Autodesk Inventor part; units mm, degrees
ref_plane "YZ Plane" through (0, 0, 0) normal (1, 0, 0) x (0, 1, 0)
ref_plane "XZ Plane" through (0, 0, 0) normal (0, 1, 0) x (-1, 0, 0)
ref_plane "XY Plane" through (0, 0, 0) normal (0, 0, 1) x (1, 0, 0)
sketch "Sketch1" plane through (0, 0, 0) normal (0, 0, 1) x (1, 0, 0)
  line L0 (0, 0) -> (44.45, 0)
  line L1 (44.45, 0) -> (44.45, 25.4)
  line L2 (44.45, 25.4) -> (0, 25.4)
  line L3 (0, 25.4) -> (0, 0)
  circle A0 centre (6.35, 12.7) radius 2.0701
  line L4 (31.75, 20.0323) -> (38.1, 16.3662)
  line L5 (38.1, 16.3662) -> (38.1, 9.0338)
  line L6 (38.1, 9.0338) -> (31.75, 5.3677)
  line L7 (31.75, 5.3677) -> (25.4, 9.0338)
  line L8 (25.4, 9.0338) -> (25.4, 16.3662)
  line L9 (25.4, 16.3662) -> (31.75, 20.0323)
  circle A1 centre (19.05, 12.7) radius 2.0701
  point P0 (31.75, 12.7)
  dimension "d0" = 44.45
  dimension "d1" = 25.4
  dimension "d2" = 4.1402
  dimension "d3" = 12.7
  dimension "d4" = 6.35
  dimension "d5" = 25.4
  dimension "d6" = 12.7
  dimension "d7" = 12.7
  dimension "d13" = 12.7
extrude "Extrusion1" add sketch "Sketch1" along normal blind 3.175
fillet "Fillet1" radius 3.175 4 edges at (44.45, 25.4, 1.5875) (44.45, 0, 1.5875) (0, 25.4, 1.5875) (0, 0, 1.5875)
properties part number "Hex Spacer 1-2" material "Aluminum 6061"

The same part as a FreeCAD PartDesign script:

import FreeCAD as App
import Part
import Sketcher
from FreeCAD import Vector
Q = App.Units.Quantity


def edges_at(feature, points):
    """Names of the edges that pass closest to the given points."""
    edges = feature.Shape.Edges
    near = lambda p: min(range(len(edges)), key=lambda i: edges[i].distToShape(Part.Vertex(*p))[0])
    return sorted({f"Edge{near(p) + 1}" for p in points})

doc = App.newDocument("Part")
body = doc.addObject("PartDesign::Body", "Body")

sketch1 = doc.addObject("Sketcher::SketchObject", "Sketch")
body.addObject(sketch1)
sketch1.AttachmentSupport = (doc.XY_Plane, [""])
sketch1.MapMode = "FlatFace"
sketch1.addGeometry([
    Part.LineSegment(Vector(0, 25.4, 0), Vector(0, 0, 0)),
    Part.LineSegment(Vector(0, 0, 0), Vector(44.45, 0, 0)),
    Part.LineSegment(Vector(44.45, 0, 0), Vector(44.45, 25.4, 0)),
    Part.LineSegment(Vector(44.45, 25.4, 0), Vector(0, 25.4, 0)),
    Part.Circle(Vector(6.35, 12.7, 0), Vector(0, 0, 1), 2.0701),
    Part.Circle(Vector(19.05, 12.7, 0), Vector(0, 0, 1), 2.0701),
    Part.LineSegment(Vector(25.4, 16.3662, 0), Vector(31.75, 20.0323, 0)),
    Part.LineSegment(Vector(31.75, 20.0323, 0), Vector(38.1, 16.3662, 0)),
    Part.LineSegment(Vector(38.1, 16.3662, 0), Vector(38.1, 9.0338, 0)),
    Part.LineSegment(Vector(38.1, 9.0338, 0), Vector(31.75, 5.3677, 0)),
    Part.LineSegment(Vector(31.75, 5.3677, 0), Vector(25.4, 9.0338, 0)),
    Part.LineSegment(Vector(25.4, 9.0338, 0), Vector(25.4, 16.3662, 0)),
], False)
sketch1.addConstraint([
    Sketcher.Constraint("Coincident", 0, 2, 1, 1),
    Sketcher.Constraint("Coincident", 1, 2, 2, 1),
    Sketcher.Constraint("Coincident", 2, 2, 3, 1),
    Sketcher.Constraint("Coincident", 3, 2, 0, 1),
    Sketcher.Constraint("Coincident", 6, 2, 7, 1),
    Sketcher.Constraint("Coincident", 7, 2, 8, 1),
    Sketcher.Constraint("Coincident", 8, 2, 9, 1),
    Sketcher.Constraint("Coincident", 9, 2, 10, 1),
    Sketcher.Constraint("Coincident", 10, 2, 11, 1),
    Sketcher.Constraint("Coincident", 11, 2, 6, 1),
    Sketcher.Constraint("Vertical", 0),
    Sketcher.Constraint("Horizontal", 1),
    Sketcher.Constraint("Vertical", 2),
    Sketcher.Constraint("Horizontal", 3),
    Sketcher.Constraint("Vertical", 8),
    Sketcher.Constraint("Vertical", 11),
    Sketcher.Constraint("Coincident", 0, 2, -1, 1),
    Sketcher.Constraint("Equal", 4, 5),
    Sketcher.Constraint("Parallel", 6, 9),
    Sketcher.Constraint("Parallel", 7, 10),
    Sketcher.Constraint("Horizontal", 4, 3, 5, 3),
    Sketcher.Constraint("Horizontal", 8, 2, 10, 2),
    Sketcher.Constraint("Horizontal", 7, 2, 11, 2),
    Sketcher.Constraint("Vertical", 6, 2, 9, 2),
    Sketcher.Constraint("DistanceY", 0, 2, 0, 1, Q("1 in")),
    Sketcher.Constraint("Diameter", 4, Q("0.163 in")),
    Sketcher.Constraint("DistanceX", -1, 1, 10, 2, Q("1 in")),
    Sketcher.Constraint("DistanceX", 5, 3, 1, 2, Q("1 in")),
    Sketcher.Constraint("DistanceX", 4, 3, 6, 2, Q("1 in")),
    Sketcher.Constraint("DistanceX", 1, 1, 1, 2, Q("1.75 in")),
    Sketcher.Constraint("DistanceY", -1, 1, 4, 3, Q("0.5 in")),
    Sketcher.Constraint("DistanceX", 4, 3, 5, 3, Q("0.5 in")),
    Sketcher.Constraint("Angle", 6, Q("29.9995 deg")),
    Sketcher.Constraint("DistanceY", 8, 2, 6, 2, Q("0.433 in")),
    Sketcher.Constraint("DistanceY", -1, 1, 6, 2, 20.0323),
])
pad1 = doc.addObject("PartDesign::Pad", "Pad")
body.addObject(pad1)
pad1.Profile = sketch1
pad1.Length = Q("0.125 in")
doc.recompute()

fillet = doc.addObject("PartDesign::Fillet", "Fillet")
body.addObject(fillet)
fillet.Base = (pad1, edges_at(pad1, [
    (44.45, 25.4, 1.587),
    (44.45, 0, 1.587),
    (0, 25.4, 1.587),
    (0, 0, 1.587),
]))
fillet.Radius = Q("0.125 in")

doc.recompute()
